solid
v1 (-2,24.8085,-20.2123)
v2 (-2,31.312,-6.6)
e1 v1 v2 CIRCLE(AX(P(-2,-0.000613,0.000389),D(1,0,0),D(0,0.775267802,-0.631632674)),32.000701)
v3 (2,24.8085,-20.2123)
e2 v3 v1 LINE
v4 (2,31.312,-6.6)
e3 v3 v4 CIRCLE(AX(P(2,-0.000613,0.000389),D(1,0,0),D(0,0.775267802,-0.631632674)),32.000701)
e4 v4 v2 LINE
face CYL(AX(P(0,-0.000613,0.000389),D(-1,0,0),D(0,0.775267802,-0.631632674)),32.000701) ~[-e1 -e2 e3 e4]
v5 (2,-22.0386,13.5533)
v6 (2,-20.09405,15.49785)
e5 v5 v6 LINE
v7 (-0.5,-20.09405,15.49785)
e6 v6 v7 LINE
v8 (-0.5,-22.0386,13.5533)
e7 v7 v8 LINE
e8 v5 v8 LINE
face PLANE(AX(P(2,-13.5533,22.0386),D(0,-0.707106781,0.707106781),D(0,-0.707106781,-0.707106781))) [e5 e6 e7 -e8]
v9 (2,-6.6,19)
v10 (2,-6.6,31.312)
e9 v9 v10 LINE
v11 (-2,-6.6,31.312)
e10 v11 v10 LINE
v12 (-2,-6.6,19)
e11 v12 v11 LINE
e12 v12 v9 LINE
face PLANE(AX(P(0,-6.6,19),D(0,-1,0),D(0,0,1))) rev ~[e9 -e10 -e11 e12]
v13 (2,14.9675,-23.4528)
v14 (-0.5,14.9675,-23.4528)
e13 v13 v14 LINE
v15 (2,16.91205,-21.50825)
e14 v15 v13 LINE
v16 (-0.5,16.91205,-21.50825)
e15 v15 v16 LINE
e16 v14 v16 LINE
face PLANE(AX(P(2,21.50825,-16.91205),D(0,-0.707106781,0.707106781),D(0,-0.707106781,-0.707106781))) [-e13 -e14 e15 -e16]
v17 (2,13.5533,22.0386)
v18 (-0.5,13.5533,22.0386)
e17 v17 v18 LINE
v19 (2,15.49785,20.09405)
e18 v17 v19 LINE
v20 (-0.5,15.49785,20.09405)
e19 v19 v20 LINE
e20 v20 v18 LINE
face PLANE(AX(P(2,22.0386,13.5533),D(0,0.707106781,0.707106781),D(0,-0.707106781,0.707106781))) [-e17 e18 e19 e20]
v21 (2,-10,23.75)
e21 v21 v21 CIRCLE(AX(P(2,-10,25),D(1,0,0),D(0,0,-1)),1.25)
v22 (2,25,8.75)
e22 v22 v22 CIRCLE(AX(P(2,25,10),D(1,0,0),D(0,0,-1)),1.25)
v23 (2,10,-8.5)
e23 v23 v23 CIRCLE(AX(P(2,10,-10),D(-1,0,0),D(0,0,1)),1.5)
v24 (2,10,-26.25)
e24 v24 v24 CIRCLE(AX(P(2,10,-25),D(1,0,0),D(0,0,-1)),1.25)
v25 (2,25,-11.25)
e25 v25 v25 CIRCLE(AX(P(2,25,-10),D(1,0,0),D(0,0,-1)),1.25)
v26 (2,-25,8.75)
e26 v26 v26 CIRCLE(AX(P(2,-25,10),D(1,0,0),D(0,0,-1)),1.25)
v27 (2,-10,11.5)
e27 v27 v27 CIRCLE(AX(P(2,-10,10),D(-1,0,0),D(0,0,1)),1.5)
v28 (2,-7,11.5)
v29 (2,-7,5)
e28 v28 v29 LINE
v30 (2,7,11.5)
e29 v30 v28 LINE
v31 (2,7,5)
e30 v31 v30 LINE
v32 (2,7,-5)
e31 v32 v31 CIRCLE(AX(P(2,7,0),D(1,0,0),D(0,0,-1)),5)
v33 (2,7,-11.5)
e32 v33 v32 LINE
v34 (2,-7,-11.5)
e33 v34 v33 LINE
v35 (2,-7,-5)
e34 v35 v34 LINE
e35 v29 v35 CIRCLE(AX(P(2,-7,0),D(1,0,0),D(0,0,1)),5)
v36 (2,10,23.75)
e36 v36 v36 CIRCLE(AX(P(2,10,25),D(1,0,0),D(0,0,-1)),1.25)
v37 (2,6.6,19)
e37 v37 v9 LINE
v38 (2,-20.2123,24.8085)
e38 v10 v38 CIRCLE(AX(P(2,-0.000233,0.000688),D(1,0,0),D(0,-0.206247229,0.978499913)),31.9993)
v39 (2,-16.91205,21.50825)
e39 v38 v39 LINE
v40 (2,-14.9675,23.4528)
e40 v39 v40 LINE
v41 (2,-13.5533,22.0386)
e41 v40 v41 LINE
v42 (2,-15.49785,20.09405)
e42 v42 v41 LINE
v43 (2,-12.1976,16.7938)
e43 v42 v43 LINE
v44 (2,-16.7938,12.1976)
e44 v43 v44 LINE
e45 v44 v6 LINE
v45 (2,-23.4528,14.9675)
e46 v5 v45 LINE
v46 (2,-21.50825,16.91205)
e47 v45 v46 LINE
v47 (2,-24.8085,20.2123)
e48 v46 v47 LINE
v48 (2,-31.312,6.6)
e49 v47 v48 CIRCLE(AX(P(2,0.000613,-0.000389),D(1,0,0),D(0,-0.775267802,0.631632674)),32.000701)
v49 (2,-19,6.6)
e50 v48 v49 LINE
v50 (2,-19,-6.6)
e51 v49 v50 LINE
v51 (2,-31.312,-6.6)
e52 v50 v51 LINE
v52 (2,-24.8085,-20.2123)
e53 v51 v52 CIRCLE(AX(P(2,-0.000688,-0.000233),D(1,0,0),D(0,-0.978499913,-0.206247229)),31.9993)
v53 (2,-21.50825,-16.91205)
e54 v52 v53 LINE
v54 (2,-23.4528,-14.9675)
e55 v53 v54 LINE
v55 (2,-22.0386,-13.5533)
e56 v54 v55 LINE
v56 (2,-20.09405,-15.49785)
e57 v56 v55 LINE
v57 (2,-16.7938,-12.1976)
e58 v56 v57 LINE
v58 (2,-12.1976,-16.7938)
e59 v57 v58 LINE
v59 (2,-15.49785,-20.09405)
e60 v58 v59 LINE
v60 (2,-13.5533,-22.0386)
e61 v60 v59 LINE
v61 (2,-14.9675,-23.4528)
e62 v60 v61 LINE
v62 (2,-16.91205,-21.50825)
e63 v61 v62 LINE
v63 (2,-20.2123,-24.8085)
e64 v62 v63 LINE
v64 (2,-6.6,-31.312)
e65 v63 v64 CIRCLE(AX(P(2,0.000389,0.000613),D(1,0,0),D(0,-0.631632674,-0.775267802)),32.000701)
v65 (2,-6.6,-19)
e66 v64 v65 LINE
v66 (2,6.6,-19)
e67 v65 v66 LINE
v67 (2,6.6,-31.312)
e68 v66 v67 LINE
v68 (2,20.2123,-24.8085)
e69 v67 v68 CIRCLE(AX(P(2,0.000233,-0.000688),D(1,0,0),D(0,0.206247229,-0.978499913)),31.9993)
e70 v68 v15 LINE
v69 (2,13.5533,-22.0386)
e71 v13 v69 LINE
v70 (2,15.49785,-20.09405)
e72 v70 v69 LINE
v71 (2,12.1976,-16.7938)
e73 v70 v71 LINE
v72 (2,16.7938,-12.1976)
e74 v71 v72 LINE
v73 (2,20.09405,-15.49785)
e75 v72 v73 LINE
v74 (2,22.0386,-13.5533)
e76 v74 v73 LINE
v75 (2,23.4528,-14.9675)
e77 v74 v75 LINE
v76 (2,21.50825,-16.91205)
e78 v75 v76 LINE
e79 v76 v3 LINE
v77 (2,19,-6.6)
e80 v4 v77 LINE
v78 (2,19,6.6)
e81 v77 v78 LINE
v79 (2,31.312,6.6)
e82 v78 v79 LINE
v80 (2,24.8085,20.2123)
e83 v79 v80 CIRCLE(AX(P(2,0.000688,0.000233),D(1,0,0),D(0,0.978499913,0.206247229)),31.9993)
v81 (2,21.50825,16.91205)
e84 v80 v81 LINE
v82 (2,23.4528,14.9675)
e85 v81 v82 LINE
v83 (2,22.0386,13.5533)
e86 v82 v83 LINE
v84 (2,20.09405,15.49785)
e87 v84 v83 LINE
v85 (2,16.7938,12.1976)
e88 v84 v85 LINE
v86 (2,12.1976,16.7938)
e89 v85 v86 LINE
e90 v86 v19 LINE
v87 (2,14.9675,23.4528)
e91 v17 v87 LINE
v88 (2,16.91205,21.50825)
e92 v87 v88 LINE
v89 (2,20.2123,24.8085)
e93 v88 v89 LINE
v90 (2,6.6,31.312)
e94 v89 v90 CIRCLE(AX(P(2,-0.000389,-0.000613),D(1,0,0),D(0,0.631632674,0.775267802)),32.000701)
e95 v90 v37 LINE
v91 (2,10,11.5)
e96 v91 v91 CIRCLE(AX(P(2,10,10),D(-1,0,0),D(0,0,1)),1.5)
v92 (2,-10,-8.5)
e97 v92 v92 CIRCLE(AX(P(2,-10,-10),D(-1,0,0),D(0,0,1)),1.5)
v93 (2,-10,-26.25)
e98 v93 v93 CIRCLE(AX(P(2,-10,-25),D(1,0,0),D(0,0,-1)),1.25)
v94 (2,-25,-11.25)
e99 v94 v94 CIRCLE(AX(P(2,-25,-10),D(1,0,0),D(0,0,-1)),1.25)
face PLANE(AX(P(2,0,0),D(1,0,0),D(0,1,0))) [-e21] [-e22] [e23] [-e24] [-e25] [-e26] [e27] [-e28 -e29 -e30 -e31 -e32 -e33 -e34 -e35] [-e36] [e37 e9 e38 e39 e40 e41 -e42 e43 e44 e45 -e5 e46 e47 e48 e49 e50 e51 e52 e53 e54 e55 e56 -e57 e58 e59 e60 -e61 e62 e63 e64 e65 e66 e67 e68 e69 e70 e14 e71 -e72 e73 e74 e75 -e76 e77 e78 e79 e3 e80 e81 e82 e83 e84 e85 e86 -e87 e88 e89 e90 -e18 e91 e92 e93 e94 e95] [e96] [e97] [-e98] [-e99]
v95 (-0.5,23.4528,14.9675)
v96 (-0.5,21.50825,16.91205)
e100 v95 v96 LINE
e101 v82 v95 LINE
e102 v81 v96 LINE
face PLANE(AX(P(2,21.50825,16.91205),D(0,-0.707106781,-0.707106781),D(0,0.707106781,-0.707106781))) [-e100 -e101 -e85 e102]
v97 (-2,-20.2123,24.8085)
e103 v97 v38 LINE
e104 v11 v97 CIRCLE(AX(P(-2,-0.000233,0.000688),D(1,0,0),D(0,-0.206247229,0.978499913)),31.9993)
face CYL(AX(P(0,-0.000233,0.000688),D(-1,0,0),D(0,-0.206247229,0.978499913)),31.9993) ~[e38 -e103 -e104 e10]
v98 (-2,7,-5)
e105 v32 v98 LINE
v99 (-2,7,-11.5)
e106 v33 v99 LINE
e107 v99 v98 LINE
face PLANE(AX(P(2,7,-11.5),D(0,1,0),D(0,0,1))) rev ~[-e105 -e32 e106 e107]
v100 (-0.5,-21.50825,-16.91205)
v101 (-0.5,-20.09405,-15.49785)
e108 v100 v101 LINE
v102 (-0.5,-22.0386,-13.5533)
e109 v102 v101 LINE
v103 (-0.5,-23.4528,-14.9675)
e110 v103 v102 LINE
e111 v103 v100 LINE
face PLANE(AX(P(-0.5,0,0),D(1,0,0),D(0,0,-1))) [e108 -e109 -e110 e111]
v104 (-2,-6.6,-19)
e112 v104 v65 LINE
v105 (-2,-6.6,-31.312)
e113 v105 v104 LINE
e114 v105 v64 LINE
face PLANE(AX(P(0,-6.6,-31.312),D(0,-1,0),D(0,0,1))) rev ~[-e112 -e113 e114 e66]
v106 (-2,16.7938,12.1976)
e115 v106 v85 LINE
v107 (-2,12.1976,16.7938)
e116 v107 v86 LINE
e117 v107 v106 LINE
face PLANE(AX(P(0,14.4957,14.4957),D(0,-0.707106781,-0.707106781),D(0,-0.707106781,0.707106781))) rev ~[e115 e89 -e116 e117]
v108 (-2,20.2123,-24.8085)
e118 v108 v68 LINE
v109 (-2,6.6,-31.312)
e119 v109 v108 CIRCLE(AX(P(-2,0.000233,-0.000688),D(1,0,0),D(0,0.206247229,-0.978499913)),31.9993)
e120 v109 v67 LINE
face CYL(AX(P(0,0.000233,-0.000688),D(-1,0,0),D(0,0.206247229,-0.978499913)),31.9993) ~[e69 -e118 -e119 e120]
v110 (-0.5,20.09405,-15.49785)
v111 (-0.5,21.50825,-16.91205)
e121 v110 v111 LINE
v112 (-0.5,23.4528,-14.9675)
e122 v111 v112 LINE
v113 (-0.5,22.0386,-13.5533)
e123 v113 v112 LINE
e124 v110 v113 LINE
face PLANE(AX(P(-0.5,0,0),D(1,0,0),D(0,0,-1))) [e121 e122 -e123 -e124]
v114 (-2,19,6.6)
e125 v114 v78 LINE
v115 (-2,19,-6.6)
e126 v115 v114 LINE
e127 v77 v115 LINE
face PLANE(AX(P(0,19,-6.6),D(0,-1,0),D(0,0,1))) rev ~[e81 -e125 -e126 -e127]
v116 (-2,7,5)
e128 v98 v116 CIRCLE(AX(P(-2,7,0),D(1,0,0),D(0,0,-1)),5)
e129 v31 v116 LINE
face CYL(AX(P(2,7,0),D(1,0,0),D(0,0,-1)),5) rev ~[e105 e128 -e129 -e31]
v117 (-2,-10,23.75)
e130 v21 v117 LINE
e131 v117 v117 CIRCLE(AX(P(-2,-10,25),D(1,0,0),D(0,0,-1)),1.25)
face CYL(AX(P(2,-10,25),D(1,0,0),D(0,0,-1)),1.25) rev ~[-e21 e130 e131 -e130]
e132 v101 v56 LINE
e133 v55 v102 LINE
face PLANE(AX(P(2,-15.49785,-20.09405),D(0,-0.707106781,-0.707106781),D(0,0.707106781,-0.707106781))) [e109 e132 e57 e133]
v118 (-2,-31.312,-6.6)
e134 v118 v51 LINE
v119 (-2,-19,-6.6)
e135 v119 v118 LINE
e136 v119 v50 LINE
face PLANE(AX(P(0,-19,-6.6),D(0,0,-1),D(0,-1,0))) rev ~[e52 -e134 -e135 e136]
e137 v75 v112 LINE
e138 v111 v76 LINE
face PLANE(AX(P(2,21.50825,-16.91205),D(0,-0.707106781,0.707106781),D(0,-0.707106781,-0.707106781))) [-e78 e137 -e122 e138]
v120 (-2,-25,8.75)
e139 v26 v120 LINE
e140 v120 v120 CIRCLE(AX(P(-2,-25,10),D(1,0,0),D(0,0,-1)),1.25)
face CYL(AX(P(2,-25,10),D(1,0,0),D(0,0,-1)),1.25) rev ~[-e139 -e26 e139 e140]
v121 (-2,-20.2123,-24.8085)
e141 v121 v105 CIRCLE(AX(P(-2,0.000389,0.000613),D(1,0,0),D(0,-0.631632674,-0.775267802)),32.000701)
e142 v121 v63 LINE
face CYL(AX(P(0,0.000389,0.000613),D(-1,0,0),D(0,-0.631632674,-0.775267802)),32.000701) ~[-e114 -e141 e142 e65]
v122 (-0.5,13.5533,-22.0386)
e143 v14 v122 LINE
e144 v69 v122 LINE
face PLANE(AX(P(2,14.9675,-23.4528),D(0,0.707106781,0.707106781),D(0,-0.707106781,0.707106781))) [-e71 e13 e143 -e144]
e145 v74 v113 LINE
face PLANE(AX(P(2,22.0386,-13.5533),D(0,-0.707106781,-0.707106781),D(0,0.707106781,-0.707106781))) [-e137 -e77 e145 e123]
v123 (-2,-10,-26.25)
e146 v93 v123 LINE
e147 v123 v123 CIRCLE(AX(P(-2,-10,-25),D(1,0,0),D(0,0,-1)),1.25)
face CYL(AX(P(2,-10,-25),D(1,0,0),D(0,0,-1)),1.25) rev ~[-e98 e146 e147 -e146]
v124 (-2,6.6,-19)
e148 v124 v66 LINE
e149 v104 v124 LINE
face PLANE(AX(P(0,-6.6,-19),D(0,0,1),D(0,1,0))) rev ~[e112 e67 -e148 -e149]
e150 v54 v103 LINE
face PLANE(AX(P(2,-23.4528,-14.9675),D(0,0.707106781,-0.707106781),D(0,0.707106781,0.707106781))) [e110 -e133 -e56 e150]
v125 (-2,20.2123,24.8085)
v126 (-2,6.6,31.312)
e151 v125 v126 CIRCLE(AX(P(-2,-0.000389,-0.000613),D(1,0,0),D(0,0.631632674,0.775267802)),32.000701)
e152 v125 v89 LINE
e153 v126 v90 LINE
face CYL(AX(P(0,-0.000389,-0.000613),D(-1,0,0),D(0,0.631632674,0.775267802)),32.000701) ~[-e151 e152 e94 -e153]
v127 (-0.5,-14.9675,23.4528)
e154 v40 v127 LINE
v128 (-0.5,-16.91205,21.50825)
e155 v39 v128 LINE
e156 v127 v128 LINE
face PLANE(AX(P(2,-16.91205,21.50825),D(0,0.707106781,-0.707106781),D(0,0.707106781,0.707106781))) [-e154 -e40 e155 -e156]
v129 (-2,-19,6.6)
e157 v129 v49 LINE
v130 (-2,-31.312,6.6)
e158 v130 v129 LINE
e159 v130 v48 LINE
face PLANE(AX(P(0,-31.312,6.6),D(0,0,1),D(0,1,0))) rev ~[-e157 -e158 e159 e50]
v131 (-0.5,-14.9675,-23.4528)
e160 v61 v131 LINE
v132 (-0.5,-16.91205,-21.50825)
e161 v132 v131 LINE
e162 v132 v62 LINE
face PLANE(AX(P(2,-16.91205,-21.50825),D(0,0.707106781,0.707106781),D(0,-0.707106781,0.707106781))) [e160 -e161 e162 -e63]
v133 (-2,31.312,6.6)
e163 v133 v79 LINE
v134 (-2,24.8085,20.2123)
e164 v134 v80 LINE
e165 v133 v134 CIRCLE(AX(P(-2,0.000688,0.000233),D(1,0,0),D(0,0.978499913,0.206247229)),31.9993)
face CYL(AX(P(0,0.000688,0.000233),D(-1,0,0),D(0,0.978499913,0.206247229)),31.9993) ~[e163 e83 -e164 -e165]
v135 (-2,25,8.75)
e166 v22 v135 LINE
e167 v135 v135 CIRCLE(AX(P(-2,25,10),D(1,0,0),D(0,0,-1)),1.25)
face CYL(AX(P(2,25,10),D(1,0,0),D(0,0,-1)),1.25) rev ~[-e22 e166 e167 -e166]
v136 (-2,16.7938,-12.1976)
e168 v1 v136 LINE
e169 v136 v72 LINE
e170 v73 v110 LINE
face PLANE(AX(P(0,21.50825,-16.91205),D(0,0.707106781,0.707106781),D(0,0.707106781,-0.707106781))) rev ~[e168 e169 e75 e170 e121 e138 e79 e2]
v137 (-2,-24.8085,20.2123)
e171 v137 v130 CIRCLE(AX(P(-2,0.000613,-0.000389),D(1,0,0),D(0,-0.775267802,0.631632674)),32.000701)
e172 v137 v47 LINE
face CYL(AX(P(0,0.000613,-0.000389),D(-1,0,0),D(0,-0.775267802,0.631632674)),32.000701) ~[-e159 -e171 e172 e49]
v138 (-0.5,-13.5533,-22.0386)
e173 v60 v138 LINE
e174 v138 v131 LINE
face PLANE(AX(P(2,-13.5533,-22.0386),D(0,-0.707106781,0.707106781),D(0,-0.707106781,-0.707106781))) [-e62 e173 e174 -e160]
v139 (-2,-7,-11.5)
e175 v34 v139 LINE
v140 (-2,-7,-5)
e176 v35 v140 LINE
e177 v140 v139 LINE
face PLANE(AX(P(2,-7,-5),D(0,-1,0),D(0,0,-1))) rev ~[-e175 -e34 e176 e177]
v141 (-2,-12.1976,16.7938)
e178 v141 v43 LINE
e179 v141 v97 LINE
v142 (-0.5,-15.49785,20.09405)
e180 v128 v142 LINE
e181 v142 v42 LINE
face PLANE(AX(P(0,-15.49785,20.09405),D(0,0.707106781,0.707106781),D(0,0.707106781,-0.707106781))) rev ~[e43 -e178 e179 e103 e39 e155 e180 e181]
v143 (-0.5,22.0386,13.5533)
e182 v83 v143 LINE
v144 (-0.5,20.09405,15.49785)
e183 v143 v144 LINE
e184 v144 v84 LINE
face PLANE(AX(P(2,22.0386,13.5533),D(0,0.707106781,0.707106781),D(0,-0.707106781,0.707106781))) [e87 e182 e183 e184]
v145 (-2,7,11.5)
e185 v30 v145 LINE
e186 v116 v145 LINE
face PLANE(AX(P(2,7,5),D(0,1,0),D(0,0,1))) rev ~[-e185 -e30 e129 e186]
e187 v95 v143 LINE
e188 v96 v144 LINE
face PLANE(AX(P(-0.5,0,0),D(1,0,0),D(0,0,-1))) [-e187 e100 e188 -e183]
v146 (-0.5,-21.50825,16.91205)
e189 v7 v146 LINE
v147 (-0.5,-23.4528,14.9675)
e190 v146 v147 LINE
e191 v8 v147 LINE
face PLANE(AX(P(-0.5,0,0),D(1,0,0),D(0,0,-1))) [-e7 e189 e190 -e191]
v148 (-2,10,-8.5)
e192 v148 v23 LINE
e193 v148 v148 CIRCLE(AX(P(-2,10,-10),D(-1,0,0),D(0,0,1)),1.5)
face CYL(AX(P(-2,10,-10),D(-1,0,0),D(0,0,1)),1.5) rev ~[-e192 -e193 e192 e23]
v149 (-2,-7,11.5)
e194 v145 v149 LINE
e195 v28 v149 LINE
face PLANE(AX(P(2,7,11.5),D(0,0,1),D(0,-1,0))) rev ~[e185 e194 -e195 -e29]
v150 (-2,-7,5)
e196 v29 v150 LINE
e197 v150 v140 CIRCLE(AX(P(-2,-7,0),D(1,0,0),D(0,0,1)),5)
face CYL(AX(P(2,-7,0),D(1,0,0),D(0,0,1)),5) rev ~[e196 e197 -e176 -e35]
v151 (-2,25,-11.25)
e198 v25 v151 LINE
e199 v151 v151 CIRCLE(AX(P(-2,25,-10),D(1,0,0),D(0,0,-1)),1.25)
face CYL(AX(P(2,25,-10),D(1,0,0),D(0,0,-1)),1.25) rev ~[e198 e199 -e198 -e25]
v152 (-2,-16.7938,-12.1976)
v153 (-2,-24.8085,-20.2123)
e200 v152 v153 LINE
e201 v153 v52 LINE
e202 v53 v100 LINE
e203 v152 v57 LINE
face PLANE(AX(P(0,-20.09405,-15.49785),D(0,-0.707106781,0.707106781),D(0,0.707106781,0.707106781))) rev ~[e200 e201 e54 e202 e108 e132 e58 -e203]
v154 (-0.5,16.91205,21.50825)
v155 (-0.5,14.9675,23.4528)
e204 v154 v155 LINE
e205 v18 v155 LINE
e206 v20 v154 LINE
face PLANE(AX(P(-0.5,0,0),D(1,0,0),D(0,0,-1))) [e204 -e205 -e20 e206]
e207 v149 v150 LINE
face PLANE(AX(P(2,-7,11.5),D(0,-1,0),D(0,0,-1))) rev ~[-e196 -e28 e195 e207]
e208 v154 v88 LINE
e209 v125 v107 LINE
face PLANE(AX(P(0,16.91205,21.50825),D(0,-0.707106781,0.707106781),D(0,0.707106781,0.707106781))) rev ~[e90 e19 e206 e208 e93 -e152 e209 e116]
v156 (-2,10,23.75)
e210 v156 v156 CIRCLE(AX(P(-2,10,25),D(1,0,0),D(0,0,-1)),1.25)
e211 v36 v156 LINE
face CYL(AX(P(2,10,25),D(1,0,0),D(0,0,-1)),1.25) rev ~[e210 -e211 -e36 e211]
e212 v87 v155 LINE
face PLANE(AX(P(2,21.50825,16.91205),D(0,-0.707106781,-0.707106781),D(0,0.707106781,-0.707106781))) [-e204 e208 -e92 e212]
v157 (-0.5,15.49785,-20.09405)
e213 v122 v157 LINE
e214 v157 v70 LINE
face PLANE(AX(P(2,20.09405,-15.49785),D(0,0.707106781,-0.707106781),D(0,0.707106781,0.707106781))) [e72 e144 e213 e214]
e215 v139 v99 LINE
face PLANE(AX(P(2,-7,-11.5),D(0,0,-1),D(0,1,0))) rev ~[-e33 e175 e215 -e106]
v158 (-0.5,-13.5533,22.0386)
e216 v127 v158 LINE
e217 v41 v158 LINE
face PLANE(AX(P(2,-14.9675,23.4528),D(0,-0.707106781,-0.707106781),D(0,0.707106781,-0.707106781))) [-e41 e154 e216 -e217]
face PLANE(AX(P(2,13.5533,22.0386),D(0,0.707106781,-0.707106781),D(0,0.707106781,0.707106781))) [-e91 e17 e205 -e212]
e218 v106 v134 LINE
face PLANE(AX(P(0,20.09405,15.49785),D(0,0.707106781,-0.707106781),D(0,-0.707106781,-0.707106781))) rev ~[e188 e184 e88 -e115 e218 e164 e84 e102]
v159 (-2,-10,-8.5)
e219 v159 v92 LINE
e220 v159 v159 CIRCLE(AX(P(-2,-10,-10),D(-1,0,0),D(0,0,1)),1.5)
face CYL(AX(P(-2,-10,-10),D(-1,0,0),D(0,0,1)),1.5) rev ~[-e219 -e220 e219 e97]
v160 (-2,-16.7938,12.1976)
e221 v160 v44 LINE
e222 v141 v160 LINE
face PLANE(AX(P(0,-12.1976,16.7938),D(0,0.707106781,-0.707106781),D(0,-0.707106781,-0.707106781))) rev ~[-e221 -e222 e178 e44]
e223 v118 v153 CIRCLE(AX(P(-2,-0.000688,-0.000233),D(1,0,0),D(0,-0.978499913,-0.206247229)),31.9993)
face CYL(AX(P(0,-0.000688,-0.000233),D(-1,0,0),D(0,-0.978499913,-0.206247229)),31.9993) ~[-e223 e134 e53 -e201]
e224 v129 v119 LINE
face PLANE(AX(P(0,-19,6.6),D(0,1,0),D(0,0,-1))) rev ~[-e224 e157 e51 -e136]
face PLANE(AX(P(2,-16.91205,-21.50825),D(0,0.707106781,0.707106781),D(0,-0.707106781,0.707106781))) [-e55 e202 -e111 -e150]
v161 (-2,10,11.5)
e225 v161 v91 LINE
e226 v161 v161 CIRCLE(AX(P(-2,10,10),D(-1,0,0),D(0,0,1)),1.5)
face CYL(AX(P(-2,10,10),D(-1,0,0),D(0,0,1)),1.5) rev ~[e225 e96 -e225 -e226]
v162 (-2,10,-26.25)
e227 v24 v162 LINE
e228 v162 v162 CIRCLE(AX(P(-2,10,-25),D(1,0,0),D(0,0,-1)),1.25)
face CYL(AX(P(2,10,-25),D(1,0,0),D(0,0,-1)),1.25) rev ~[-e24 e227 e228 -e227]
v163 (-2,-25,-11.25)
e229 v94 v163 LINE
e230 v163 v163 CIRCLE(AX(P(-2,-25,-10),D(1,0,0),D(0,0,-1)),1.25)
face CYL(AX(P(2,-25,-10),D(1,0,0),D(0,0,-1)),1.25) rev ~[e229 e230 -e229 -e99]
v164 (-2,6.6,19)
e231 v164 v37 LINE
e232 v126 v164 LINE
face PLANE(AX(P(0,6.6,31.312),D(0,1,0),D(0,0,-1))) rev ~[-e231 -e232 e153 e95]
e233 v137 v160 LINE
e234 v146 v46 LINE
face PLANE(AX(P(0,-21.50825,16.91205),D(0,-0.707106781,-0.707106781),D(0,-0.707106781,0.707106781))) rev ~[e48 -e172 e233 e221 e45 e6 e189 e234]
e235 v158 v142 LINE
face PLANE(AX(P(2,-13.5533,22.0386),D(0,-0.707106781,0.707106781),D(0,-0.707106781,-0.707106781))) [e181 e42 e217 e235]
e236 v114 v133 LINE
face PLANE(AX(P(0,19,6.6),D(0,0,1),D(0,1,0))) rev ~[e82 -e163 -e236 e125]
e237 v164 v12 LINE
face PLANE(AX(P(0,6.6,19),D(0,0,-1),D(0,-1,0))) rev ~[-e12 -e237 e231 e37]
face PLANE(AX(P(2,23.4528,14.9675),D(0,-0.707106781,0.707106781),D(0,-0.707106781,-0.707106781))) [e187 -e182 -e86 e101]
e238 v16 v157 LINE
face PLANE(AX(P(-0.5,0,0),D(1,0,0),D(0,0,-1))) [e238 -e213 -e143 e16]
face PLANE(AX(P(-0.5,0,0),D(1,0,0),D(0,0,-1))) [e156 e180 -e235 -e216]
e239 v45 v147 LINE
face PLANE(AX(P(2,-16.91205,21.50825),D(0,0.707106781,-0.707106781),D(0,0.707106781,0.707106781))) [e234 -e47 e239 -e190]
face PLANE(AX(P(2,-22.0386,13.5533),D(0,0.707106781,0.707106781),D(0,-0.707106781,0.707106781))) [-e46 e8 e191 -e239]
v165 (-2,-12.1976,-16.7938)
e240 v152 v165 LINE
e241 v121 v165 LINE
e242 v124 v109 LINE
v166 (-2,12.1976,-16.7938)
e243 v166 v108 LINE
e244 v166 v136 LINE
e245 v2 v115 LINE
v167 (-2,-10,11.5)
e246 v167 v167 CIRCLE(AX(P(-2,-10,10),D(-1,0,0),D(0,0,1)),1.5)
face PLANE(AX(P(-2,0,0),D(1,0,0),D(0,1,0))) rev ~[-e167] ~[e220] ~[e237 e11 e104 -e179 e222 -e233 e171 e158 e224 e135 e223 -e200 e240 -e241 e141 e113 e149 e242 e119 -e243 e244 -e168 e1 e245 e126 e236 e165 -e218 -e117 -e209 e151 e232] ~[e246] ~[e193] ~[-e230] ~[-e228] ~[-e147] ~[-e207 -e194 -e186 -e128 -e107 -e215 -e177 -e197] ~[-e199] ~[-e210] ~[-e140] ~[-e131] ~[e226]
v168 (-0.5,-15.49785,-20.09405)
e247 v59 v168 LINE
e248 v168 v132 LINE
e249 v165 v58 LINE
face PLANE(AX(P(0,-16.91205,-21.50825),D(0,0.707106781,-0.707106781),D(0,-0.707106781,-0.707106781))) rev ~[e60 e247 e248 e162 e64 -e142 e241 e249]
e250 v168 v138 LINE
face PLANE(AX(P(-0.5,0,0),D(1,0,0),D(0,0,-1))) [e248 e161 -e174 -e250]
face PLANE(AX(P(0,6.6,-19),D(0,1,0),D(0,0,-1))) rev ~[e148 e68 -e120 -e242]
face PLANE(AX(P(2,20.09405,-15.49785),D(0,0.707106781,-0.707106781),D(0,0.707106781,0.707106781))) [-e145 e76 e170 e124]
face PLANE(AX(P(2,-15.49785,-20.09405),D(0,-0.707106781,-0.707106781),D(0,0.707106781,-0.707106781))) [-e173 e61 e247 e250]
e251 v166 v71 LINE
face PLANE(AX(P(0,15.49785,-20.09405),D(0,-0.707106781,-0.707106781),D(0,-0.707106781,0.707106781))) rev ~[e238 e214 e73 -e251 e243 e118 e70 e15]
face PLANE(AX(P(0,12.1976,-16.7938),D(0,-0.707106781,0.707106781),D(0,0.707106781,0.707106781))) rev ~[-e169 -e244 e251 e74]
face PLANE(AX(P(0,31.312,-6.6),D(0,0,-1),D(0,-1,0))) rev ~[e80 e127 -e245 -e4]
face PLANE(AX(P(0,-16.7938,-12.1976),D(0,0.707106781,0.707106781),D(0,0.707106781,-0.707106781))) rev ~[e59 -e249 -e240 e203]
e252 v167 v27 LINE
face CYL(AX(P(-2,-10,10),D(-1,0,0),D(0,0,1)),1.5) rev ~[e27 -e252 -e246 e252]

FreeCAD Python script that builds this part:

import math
import FreeCAD as App
import Part
import Sketcher
from FreeCAD import Vector

doc = App.newDocument("Part")
params = doc.addObject("Spreadsheet::Sheet", "Params")
for row, (alias, value) in enumerate([
    ("sketch1_radius", "32 mm"),
    ("sketch1_length", "6.5 mm"),
    ("pad1_length", "4 mm"),
    ("sketch2_length", "12 mm"),
    ("sketch2_length2", "2 mm"),
    ("pocket1_length", "2.5 mm"),
    ("sketch3_radius", "5 mm"),
    ("sketch3_width", "14 mm"),
    ("pocket2_length", "4 mm"),
    ("sketch4_diameter", "3 mm"),
    ("pocket3_length", "4 mm"),
    ("sketch5_diameter", "2.5 mm"),
    ("pocket4_length", "4 mm"),
], start=1):
    params.set(f"A{row}", alias)
    params.set(f"B{row}", "=" + value)
    params.setAlias(f"B{row}", alias)

body = doc.addObject("PartDesign::Body", "Body")

# Sketch on YZ plane
sketch1 = body.newObject("Sketcher::SketchObject", "Sketch")
sketch1.AttachmentSupport = (doc.getObject("YZ_Plane"), [""])
sketch1.MapMode = "FlatFace"
sketch1.addGeometry([
    Part.LineSegment(Vector(19, -7, 0), Vector(19, 7, 0)),  # 0
    Part.LineSegment(Vector(19, 7, 0), Vector(31, 7, 0)),  # 1
    Part.ArcOfCircle(Part.Circle(Vector(0, 0, 0), Vector(0, 0, 1), 32), math.radians(12), math.radians(39)),  # 2
    Part.LineSegment(Vector(25, 20, 0), Vector(17, 12, 0)),  # 3
    Part.LineSegment(Vector(17, 12, 0), Vector(12, 17, 0)),  # 4
    Part.LineSegment(Vector(12, 17, 0), Vector(20, 25, 0)),  # 5
    Part.ArcOfCircle(Part.Circle(Vector(0, 0, 0), Vector(0, 0, 1), 32), math.radians(51), math.radians(78)),  # 6
    Part.LineSegment(Vector(7, 31, 0), Vector(7, 19, 0)),  # 7
    Part.LineSegment(Vector(7, 19, 0), Vector(-7, 19, 0)),  # 8
    Part.LineSegment(Vector(-7, 19, 0), Vector(-7, 31, 0)),  # 9
    Part.ArcOfCircle(Part.Circle(Vector(0, 0, 0), Vector(0, 0, 1), 32), math.radians(102), math.radians(129)),  # 10
    Part.LineSegment(Vector(-20, 25, 0), Vector(-12, 17, 0)),  # 11
    Part.LineSegment(Vector(-12, 17, 0), Vector(-17, 12, 0)),  # 12
    Part.LineSegment(Vector(-17, 12, 0), Vector(-25, 20, 0)),  # 13
    Part.ArcOfCircle(Part.Circle(Vector(0, 0, 0), Vector(0, 0, 1), 32), math.radians(141), math.radians(168)),  # 14
    Part.LineSegment(Vector(-31, 7, 0), Vector(-19, 7, 0)),  # 15
    Part.LineSegment(Vector(-19, 7, 0), Vector(-19, -7, 0)),  # 16
    Part.LineSegment(Vector(-19, -7, 0), Vector(-31, -7, 0)),  # 17
    Part.ArcOfCircle(Part.Circle(Vector(0, 0, 0), Vector(0, 0, 1), 32), math.radians(-168), math.radians(-141)),  # 18
    Part.LineSegment(Vector(-25, -20, 0), Vector(-17, -12, 0)),  # 19
    Part.LineSegment(Vector(-17, -12, 0), Vector(-12, -17, 0)),  # 20
    Part.LineSegment(Vector(-12, -17, 0), Vector(-20, -25, 0)),  # 21
    Part.ArcOfCircle(Part.Circle(Vector(0, 0, 0), Vector(0, 0, 1), 32), math.radians(-129), math.radians(-102)),  # 22
    Part.LineSegment(Vector(-7, -31, 0), Vector(-7, -19, 0)),  # 23
    Part.LineSegment(Vector(-7, -19, 0), Vector(7, -19, 0)),  # 24
    Part.LineSegment(Vector(7, -19, 0), Vector(7, -31, 0)),  # 25
    Part.ArcOfCircle(Part.Circle(Vector(0, 0, 0), Vector(0, 0, 1), 32), math.radians(-78), math.radians(-51)),  # 26
    Part.LineSegment(Vector(20, -25, 0), Vector(12, -17, 0)),  # 27
    Part.LineSegment(Vector(12, -17, 0), Vector(17, -12, 0)),  # 28
    Part.LineSegment(Vector(17, -12, 0), Vector(25, -20, 0)),  # 29
    Part.ArcOfCircle(Part.Circle(Vector(0, 0, 0), Vector(0, 0, 1), 32), math.radians(-39), math.radians(-12)),  # 30
    Part.LineSegment(Vector(31, -7, 0), Vector(19, -7, 0)),  # 31
], False)
sketch1.addConstraint([
    Sketcher.Constraint("Coincident", 0, 2, 1, 1),
    Sketcher.Constraint("Coincident", 1, 2, 2, 1),
    Sketcher.Constraint("Coincident", 2, 2, 3, 1),
    Sketcher.Constraint("Coincident", 3, 2, 4, 1),
    Sketcher.Constraint("Coincident", 4, 2, 5, 1),
    Sketcher.Constraint("Coincident", 5, 2, 6, 1),
    Sketcher.Constraint("Coincident", 6, 2, 7, 1),
    Sketcher.Constraint("Coincident", 7, 2, 8, 1),
    Sketcher.Constraint("Coincident", 8, 2, 9, 1),
    Sketcher.Constraint("Coincident", 9, 2, 10, 1),
    Sketcher.Constraint("Coincident", 10, 2, 11, 1),
    Sketcher.Constraint("Coincident", 11, 2, 12, 1),
    Sketcher.Constraint("Coincident", 12, 2, 13, 1),
    Sketcher.Constraint("Coincident", 13, 2, 14, 1),
    Sketcher.Constraint("Coincident", 14, 2, 15, 1),
    Sketcher.Constraint("Coincident", 15, 2, 16, 1),
    Sketcher.Constraint("Coincident", 16, 2, 17, 1),
    Sketcher.Constraint("Coincident", 17, 2, 18, 1),
    Sketcher.Constraint("Coincident", 18, 2, 19, 1),
    Sketcher.Constraint("Coincident", 19, 2, 20, 1),
    Sketcher.Constraint("Coincident", 20, 2, 21, 1),
    Sketcher.Constraint("Coincident", 21, 2, 22, 1),
    Sketcher.Constraint("Coincident", 22, 2, 23, 1),
    Sketcher.Constraint("Coincident", 23, 2, 24, 1),
    Sketcher.Constraint("Coincident", 24, 2, 25, 1),
    Sketcher.Constraint("Coincident", 25, 2, 26, 1),
    Sketcher.Constraint("Coincident", 26, 2, 27, 1),
    Sketcher.Constraint("Coincident", 27, 2, 28, 1),
    Sketcher.Constraint("Coincident", 28, 2, 29, 1),
    Sketcher.Constraint("Coincident", 29, 2, 30, 1),
    Sketcher.Constraint("Coincident", 30, 2, 31, 1),
    Sketcher.Constraint("Coincident", 31, 2, 0, 1),
    Sketcher.Constraint("Vertical", 0),
    Sketcher.Constraint("Horizontal", 1),
    Sketcher.Constraint("Vertical", 7),
    Sketcher.Constraint("Horizontal", 8),
    Sketcher.Constraint("Vertical", 9),
    Sketcher.Constraint("Horizontal", 15),
    Sketcher.Constraint("Vertical", 16),
    Sketcher.Constraint("Horizontal", 17),
    Sketcher.Constraint("Vertical", 23),
    Sketcher.Constraint("Horizontal", 24),
    Sketcher.Constraint("Vertical", 25),
    Sketcher.Constraint("Horizontal", 31),
    Sketcher.Constraint("Coincident", 2, 3, -1, 1),
    Sketcher.Constraint("Coincident", 6, 3, -1, 1),
    Sketcher.Constraint("Coincident", 10, 3, -1, 1),
    Sketcher.Constraint("Coincident", 14, 3, -1, 1),
    Sketcher.Constraint("Coincident", 18, 3, -1, 1),
    Sketcher.Constraint("Coincident", 22, 3, -1, 1),
    Sketcher.Constraint("Coincident", 26, 3, -1, 1),
    Sketcher.Constraint("Coincident", 30, 3, -1, 1),
    Sketcher.Constraint("Equal", 2, 6),
    Sketcher.Constraint("Equal", 6, 10),
    Sketcher.Constraint("Equal", 10, 14),
    Sketcher.Constraint("Equal", 14, 18),
    Sketcher.Constraint("Equal", 18, 22),
    Sketcher.Constraint("Equal", 22, 26),
    Sketcher.Constraint("Equal", 26, 30),
    Sketcher.Constraint("Symmetric", 0, 2, 16, 2, -1, 1),
    Sketcher.Constraint("Symmetric", 3, 2, 19, 2, -1, 1),
    Sketcher.Constraint("Symmetric", 4, 2, 20, 2, -1, 1),
    Sketcher.Constraint("Symmetric", 7, 2, 23, 2, -1, 1),
    Sketcher.Constraint("Symmetric", 11, 2, 27, 2, -1, 1),
    Sketcher.Constraint("Symmetric", 12, 2, 28, 2, -1, 1),
    Sketcher.Constraint("Symmetric", 4, 2, 11, 2, -2),
    Sketcher.Constraint("Symmetric", 3, 2, 12, 2, -2),
    Sketcher.Constraint("Perpendicular", 3, 4),
    Sketcher.Constraint("Perpendicular", 4, 5),
    Sketcher.Constraint("Perpendicular", 5, 11),
    Sketcher.Constraint("Perpendicular", 11, 12),
    Sketcher.Constraint("Perpendicular", 12, 13),
    Sketcher.Constraint("Perpendicular", 13, 19),
    Sketcher.Constraint("Perpendicular", 20, 21),
    Sketcher.Constraint("Perpendicular", 21, 27),
    Sketcher.Constraint("Perpendicular", 28, 29),
    Sketcher.Constraint("Horizontal", 6, 2, 9, 2),
    Sketcher.Constraint("Horizontal", 1, 2, 14, 2),
    Sketcher.Constraint("Horizontal", 22, 2, 25, 2),
    Sketcher.Constraint("Horizontal", 17, 2, 30, 2),
    Sketcher.Constraint("Equal", 24, 0),
    Sketcher.Constraint("Equal", 31, 7),
    Sketcher.Constraint("Equal", 3, 5),
    Sketcher.Constraint("Radius", 2, 32.0),
    Sketcher.Constraint("Distance", 4, 6.5),
    Sketcher.Constraint("DistanceY", -1, 1, 0, 2, 6.6),
    Sketcher.Constraint("DistanceX", -1, 1, 0, 2, 19.0),
    Sketcher.Constraint("DistanceX", 4, 2, 2, 2, 12.611),
])
sketch1.setExpression("Constraints[83]", "Params.sketch1_radius")
sketch1.setExpression("Constraints[84]", "Params.sketch1_length")
pad1 = body.newObject("PartDesign::Pad", "Pad")
pad1.Profile = sketch1
pad1.setExpression("Length", "Params.pad1_length")
pad1.Midplane = True

# Sketch on YZ plane
sketch2 = body.newObject("Sketcher::SketchObject", "Sketch001")
sketch2.AttachmentSupport = (doc.getObject("YZ_Plane"), [""])
sketch2.MapMode = "FlatFace"
sketch2.AttachmentOffset = App.Placement(Vector(0, 0, 2), App.Rotation())
sketch2.addGeometry([
    Part.LineSegment(Vector(23.5, 15, 0), Vector(15, 23.5, 0)),  # 0
    Part.LineSegment(Vector(15, 23.5, 0), Vector(13.6, 22, 0)),  # 1
    Part.LineSegment(Vector(13.6, 22, 0), Vector(22, 13.6, 0)),  # 2
    Part.LineSegment(Vector(22, 13.6, 0), Vector(23.5, 15, 0)),  # 3
    Part.LineSegment(Vector(23.5, -15, 0), Vector(22, -13.6, 0)),  # 4
    Part.LineSegment(Vector(22, -13.6, 0), Vector(13.6, -22, 0)),  # 5
    Part.LineSegment(Vector(13.6, -22, 0), Vector(15, -23.5, 0)),  # 6
    Part.LineSegment(Vector(15, -23.5, 0), Vector(23.5, -15, 0)),  # 7
    Part.LineSegment(Vector(-15, 23.5, 0), Vector(-23.5, 15, 0)),  # 8
    Part.LineSegment(Vector(-23.5, 15, 0), Vector(-22, 13.6, 0)),  # 9
    Part.LineSegment(Vector(-22, 13.6, 0), Vector(-13.6, 22, 0)),  # 10
    Part.LineSegment(Vector(-13.6, 22, 0), Vector(-15, 23.5, 0)),  # 11
    Part.LineSegment(Vector(-15, -23.5, 0), Vector(-13.6, -22, 0)),  # 12
    Part.LineSegment(Vector(-13.6, -22, 0), Vector(-22, -13.6, 0)),  # 13
    Part.LineSegment(Vector(-22, -13.6, 0), Vector(-23.5, -15, 0)),  # 14
    Part.LineSegment(Vector(-23.5, -15, 0), Vector(-15, -23.5, 0)),  # 15
], False)
sketch2.addConstraint([
    Sketcher.Constraint("Coincident", 0, 2, 1, 1),
    Sketcher.Constraint("Coincident", 1, 2, 2, 1),
    Sketcher.Constraint("Coincident", 2, 2, 3, 1),
    Sketcher.Constraint("Coincident", 3, 2, 0, 1),
    Sketcher.Constraint("Coincident", 4, 2, 5, 1),
    Sketcher.Constraint("Coincident", 5, 2, 6, 1),
    Sketcher.Constraint("Coincident", 6, 2, 7, 1),
    Sketcher.Constraint("Coincident", 7, 2, 4, 1),
    Sketcher.Constraint("Coincident", 8, 2, 9, 1),
    Sketcher.Constraint("Coincident", 9, 2, 10, 1),
    Sketcher.Constraint("Coincident", 10, 2, 11, 1),
    Sketcher.Constraint("Coincident", 11, 2, 8, 1),
    Sketcher.Constraint("Coincident", 12, 2, 13, 1),
    Sketcher.Constraint("Coincident", 13, 2, 14, 1),
    Sketcher.Constraint("Coincident", 14, 2, 15, 1),
    Sketcher.Constraint("Coincident", 15, 2, 12, 1),
    Sketcher.Constraint("Symmetric", 7, 2, 8, 2, -1, 1),
    Sketcher.Constraint("Symmetric", 4, 2, 9, 2, -1, 1),
    Sketcher.Constraint("Symmetric", 5, 2, 10, 2, -1, 1),
    Sketcher.Constraint("Symmetric", 6, 2, 11, 2, -1, 1),
    Sketcher.Constraint("Symmetric", 1, 2, 12, 2, -1, 1),
    Sketcher.Constraint("Symmetric", 2, 2, 13, 2, -1, 1),
    Sketcher.Constraint("Symmetric", 3, 2, 14, 2, -1, 1),
    Sketcher.Constraint("Symmetric", 0, 2, 15, 2, -1, 1),
    Sketcher.Constraint("Symmetric", 3, 2, 8, 2, -2),
    Sketcher.Constraint("Symmetric", 2, 2, 9, 2, -2),
    Sketcher.Constraint("Symmetric", 1, 2, 10, 2, -2),
    Sketcher.Constraint("Symmetric", 0, 2, 11, 2, -2),
    Sketcher.Constraint("Perpendicular", 0, 1),
    Sketcher.Constraint("Perpendicular", 1, 2),
    Sketcher.Constraint("Perpendicular", 2, 3),
    Sketcher.Constraint("Perpendicular", 3, 4),
    Sketcher.Constraint("Distance", 0, 12.0),
    Sketcher.Constraint("Distance", 1, 2.0),
    Sketcher.Constraint("DistanceY", 4, 2, 1, 2, 35.592),
    Sketcher.Constraint("DistanceX", 8, 2, 1, 2, 37.006),
])
sketch2.setExpression("Constraints[32]", "Params.sketch2_length")
sketch2.setExpression("Constraints[33]", "Params.sketch2_length2")
pocket1 = body.newObject("PartDesign::Pocket", "Pocket")
pocket1.Profile = sketch2
pocket1.setExpression("Length", "Params.pocket1_length")

# Sketch on YZ plane
sketch3 = body.newObject("Sketcher::SketchObject", "Sketch002")
sketch3.AttachmentSupport = (doc.getObject("YZ_Plane"), [""])
sketch3.MapMode = "FlatFace"
sketch3.AttachmentOffset = App.Placement(Vector(0, 0, 2), App.Rotation())
sketch3.addGeometry([
    Part.LineSegment(Vector(7, 5, 0), Vector(7, 12, 0)),  # 0
    Part.LineSegment(Vector(7, 12, 0), Vector(-7, 12, 0)),  # 1
    Part.LineSegment(Vector(-7, 12, 0), Vector(-7, 5, 0)),  # 2
    Part.ArcOfCircle(Part.Circle(Vector(-7, 0, 0), Vector(0, 0, 1), 5), math.radians(90), math.radians(270)),  # 3
    Part.LineSegment(Vector(-7, -5, 0), Vector(-7, -12, 0)),  # 4
    Part.LineSegment(Vector(-7, -12, 0), Vector(7, -12, 0)),  # 5
    Part.LineSegment(Vector(7, -12, 0), Vector(7, -5, 0)),  # 6
    Part.ArcOfCircle(Part.Circle(Vector(7, 0, 0), Vector(0, 0, 1), 5), math.radians(-90), math.radians(90)),  # 7
], False)
sketch3.addConstraint([
    Sketcher.Constraint("Coincident", 0, 2, 1, 1),
    Sketcher.Constraint("Coincident", 1, 2, 2, 1),
    Sketcher.Constraint("Coincident", 2, 2, 3, 1),
    Sketcher.Constraint("Coincident", 3, 2, 4, 1),
    Sketcher.Constraint("Coincident", 4, 2, 5, 1),
    Sketcher.Constraint("Coincident", 5, 2, 6, 1),
    Sketcher.Constraint("Coincident", 6, 2, 7, 1),
    Sketcher.Constraint("Coincident", 7, 2, 0, 1),
    Sketcher.Constraint("Vertical", 0),
    Sketcher.Constraint("Horizontal", 1),
    Sketcher.Constraint("Vertical", 2),
    Sketcher.Constraint("Vertical", 4),
    Sketcher.Constraint("Horizontal", 5),
    Sketcher.Constraint("Vertical", 6),
    Sketcher.Constraint("Equal", 3, 7),
    Sketcher.Constraint("Symmetric", 3, 3, 7, 3, -1, 1),
    Sketcher.Constraint("Symmetric", 0, 2, 4, 2, -1, 1),
    Sketcher.Constraint("Symmetric", 3, 2, 6, 2, -2),
    Sketcher.Constraint("Vertical", 7, 3, 0, 2),
    Sketcher.Constraint("Vertical", 3, 3, 1, 2),
    Sketcher.Constraint("Radius", 3, 5.0),
    Sketcher.Constraint("DistanceX", 1, 2, 1, 1, 14.0),
    Sketcher.Constraint("DistanceY", 4, 2, 1, 2, 23.0),
])
sketch3.setExpression("Constraints[20]", "Params.sketch3_radius")
sketch3.setExpression("Constraints[21]", "Params.sketch3_width")
pocket2 = body.newObject("PartDesign::Pocket", "Pocket001")
pocket2.Profile = sketch3
pocket2.setExpression("Length", "Params.pocket2_length")

# Sketch on YZ plane
sketch4 = body.newObject("Sketcher::SketchObject", "Sketch003")
sketch4.AttachmentSupport = (doc.getObject("YZ_Plane"), [""])
sketch4.MapMode = "FlatFace"
sketch4.AttachmentOffset = App.Placement(Vector(0, 0, -2), App.Rotation())
sketch4.addGeometry([
    Part.Circle(Vector(-10, 10, 0), Vector(0, 0, 1), 1.5),
    Part.Circle(Vector(10, 10, 0), Vector(0, 0, 1), 1.5),
    Part.Circle(Vector(10, -10, 0), Vector(0, 0, 1), 1.5),
    Part.Circle(Vector(-10, -10, 0), Vector(0, 0, 1), 1.5),
], False)
sketch4.addConstraint([
    Sketcher.Constraint("Equal", 0, 1),
    Sketcher.Constraint("Equal", 1, 2),
    Sketcher.Constraint("Equal", 2, 3),
    Sketcher.Constraint("Symmetric", 0, 3, 2, 3, -1, 1),
    Sketcher.Constraint("Symmetric", 1, 3, 3, 3, -1, 1),
    Sketcher.Constraint("Symmetric", 0, 3, 1, 3, -2),
    Sketcher.Constraint("Diameter", 0, 3.0),
    Sketcher.Constraint("DistanceX", 0, 3, -1, 1, 10.0),
    Sketcher.Constraint("DistanceY", -1, 1, 0, 3, 10.0),
])
sketch4.setExpression("Constraints[6]", "Params.sketch4_diameter")
pocket3 = body.newObject("PartDesign::Pocket", "Pocket002")
pocket3.Profile = sketch4
pocket3.setExpression("Length", "Params.pocket3_length")
pocket3.Reversed = True

# Sketch on YZ plane
sketch5 = body.newObject("Sketcher::SketchObject", "Sketch004")
sketch5.AttachmentSupport = (doc.getObject("YZ_Plane"), [""])
sketch5.MapMode = "FlatFace"
sketch5.AttachmentOffset = App.Placement(Vector(0, 0, 2), App.Rotation())
sketch5.addGeometry([
    Part.Circle(Vector(25, -10, 0), Vector(0, 0, 1), 1.2),  # 0
    Part.Circle(Vector(25, 10, 0), Vector(0, 0, 1), 1.2),  # 1
    Part.Circle(Vector(10, 25, 0), Vector(0, 0, 1), 1.2),  # 2
    Part.Circle(Vector(-10, 25, 0), Vector(0, 0, 1), 1.2),  # 3
    Part.Circle(Vector(-25, 10, 0), Vector(0, 0, 1), 1.2),  # 4
    Part.Circle(Vector(-25, -10, 0), Vector(0, 0, 1), 1.2),  # 5
    Part.Circle(Vector(-10, -25, 0), Vector(0, 0, 1), 1.2),  # 6
    Part.Circle(Vector(10, -25, 0), Vector(0, 0, 1), 1.2),  # 7
], False)
sketch5.addConstraint([
    Sketcher.Constraint("Equal", 0, 1),
    Sketcher.Constraint("Equal", 1, 2),
    Sketcher.Constraint("Equal", 2, 3),
    Sketcher.Constraint("Equal", 3, 4),
    Sketcher.Constraint("Equal", 4, 5),
    Sketcher.Constraint("Equal", 5, 6),
    Sketcher.Constraint("Equal", 6, 7),
    Sketcher.Constraint("Symmetric", 0, 3, 4, 3, -1, 1),
    Sketcher.Constraint("Symmetric", 1, 3, 5, 3, -1, 1),
    Sketcher.Constraint("Symmetric", 2, 3, 6, 3, -1, 1),
    Sketcher.Constraint("Symmetric", 3, 3, 7, 3, -1, 1),
    Sketcher.Constraint("Symmetric", 2, 3, 3, 3, -2),
    Sketcher.Constraint("Symmetric", 1, 3, 4, 3, -2),
    Sketcher.Constraint("Diameter", 0, 2.5),
    Sketcher.Constraint("DistanceX", -1, 1, 0, 3, 25.0),
    Sketcher.Constraint("DistanceY", 0, 3, -1, 1, 10.0),
    Sketcher.Constraint("DistanceX", -1, 1, 2, 3, 10.0),
    Sketcher.Constraint("DistanceY", -1, 1, 2, 3, 25.0),
])
sketch5.setExpression("Constraints[13]", "Params.sketch5_diameter")
pocket4 = body.newObject("PartDesign::Pocket", "Pocket003")
pocket4.Profile = sketch5
pocket4.setExpression("Length", "Params.pocket4_length")

doc.recompute()
